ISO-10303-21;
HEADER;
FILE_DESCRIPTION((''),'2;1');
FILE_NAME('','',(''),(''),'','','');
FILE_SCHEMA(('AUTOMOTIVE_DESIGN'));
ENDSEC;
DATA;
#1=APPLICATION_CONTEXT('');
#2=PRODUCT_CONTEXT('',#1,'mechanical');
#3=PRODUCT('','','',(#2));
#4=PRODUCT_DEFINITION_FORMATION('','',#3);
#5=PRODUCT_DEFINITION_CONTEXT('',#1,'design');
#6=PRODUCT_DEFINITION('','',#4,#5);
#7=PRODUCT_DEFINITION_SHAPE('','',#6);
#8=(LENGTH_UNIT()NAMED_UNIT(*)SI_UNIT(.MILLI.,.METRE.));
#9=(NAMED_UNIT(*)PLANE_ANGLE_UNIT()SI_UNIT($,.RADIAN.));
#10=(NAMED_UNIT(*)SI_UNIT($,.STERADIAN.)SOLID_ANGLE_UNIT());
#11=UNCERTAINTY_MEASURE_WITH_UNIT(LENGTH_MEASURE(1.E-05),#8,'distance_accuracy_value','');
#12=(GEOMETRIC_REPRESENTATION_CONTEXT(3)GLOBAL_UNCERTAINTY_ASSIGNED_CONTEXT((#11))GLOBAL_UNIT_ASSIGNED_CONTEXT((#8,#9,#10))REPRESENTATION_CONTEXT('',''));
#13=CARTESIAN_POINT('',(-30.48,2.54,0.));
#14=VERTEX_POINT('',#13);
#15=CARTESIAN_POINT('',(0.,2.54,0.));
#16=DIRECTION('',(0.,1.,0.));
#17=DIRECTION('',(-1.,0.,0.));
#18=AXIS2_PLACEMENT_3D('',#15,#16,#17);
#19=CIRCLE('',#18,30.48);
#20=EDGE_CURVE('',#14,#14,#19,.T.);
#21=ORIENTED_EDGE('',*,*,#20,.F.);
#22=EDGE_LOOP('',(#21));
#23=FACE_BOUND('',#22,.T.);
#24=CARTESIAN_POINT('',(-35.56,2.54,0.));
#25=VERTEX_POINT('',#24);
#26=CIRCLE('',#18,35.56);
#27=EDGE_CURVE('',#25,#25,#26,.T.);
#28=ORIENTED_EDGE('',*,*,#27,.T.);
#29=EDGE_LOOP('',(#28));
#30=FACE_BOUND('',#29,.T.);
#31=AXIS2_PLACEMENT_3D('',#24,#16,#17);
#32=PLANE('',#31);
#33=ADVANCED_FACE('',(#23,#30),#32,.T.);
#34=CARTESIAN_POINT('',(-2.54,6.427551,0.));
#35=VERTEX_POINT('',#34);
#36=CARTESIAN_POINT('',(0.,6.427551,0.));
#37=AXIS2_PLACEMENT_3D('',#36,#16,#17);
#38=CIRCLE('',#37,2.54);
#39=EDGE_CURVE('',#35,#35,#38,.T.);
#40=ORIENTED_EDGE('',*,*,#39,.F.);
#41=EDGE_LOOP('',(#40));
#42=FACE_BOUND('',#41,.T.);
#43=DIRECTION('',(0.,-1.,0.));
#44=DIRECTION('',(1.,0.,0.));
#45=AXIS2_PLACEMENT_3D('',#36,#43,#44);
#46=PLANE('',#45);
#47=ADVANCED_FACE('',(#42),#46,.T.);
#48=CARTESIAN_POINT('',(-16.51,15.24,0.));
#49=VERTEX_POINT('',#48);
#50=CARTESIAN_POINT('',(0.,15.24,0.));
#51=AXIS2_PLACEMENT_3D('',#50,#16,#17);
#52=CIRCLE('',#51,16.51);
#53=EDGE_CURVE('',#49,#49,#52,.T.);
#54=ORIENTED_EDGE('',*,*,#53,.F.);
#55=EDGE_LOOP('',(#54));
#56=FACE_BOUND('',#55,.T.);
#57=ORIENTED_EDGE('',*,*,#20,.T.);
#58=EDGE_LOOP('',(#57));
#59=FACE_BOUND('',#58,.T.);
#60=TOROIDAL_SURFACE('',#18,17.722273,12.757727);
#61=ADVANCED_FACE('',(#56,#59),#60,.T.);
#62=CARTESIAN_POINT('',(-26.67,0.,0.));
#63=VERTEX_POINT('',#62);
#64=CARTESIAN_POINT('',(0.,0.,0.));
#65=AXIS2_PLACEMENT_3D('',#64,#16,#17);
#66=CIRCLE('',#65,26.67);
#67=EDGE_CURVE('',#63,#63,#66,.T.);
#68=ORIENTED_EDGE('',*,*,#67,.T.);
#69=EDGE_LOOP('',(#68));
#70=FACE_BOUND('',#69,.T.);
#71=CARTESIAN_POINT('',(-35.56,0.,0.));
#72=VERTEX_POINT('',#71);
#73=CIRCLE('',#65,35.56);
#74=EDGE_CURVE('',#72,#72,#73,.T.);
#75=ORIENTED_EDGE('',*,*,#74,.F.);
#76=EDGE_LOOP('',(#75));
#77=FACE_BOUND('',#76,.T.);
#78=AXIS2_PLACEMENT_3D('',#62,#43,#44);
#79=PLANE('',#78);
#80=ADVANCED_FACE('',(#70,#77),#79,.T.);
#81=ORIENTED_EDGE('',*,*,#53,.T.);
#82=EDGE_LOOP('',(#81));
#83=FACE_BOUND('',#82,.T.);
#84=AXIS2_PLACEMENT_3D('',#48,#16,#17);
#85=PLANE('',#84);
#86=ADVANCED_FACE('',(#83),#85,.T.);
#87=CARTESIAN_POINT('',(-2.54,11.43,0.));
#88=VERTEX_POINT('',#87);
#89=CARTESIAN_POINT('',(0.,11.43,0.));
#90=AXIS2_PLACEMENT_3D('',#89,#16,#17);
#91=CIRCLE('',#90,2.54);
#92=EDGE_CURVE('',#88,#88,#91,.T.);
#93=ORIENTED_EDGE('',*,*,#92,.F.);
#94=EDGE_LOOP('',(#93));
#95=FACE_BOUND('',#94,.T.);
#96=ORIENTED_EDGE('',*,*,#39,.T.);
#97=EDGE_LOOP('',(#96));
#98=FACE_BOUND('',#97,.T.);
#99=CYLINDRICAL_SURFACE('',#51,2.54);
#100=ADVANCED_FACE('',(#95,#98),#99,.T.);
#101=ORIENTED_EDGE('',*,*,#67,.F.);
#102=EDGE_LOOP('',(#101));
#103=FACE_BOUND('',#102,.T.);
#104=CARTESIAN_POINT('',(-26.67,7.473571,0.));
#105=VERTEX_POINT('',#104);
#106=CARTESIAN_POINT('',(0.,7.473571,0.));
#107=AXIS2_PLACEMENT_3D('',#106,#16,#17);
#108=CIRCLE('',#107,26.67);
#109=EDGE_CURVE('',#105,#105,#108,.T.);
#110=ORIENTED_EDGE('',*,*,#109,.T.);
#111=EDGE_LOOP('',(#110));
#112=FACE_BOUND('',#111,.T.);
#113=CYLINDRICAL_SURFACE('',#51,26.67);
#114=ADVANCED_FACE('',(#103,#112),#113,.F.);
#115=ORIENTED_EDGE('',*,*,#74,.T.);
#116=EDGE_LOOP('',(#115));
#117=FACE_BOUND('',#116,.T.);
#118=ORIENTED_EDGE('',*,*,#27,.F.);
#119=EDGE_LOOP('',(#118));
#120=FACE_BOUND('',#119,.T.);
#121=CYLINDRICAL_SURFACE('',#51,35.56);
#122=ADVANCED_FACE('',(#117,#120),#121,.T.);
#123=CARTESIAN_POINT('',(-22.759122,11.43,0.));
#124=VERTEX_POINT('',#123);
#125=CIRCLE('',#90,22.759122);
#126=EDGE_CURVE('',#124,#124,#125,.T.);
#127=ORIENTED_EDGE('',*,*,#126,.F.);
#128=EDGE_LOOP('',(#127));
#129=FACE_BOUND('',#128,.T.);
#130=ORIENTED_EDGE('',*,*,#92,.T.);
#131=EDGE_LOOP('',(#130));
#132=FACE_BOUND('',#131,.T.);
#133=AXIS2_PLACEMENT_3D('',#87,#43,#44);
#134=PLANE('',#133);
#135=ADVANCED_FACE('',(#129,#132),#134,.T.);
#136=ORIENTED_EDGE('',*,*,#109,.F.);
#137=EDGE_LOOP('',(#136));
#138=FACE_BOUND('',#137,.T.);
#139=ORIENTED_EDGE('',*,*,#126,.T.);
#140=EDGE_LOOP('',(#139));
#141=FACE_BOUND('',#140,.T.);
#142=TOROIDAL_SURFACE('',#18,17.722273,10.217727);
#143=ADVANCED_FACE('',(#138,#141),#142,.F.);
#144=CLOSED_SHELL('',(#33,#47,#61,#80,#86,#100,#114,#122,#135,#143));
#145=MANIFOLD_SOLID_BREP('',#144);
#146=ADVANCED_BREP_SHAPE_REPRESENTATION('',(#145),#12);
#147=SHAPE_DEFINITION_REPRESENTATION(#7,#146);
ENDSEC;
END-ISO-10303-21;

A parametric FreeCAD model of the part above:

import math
import FreeCAD as App
import Part
import Sketcher

V = App.Vector
Q = App.Units.Quantity

doc = App.newDocument("Part")
body = doc.addObject("PartDesign::Body", "Body")

# Sketch on XY plane
sketch1 = doc.addObject("Sketcher::SketchObject", "Sketch")
body.addObject(sketch1)
sketch1.AttachmentSupport = (doc.XY_Plane, [""])
sketch1.MapMode = "FlatFace"
sketch1.addGeometry([
    Part.LineSegment(V(-35.6, 2.5, 0), V(-35.6, 0, 0)),  # 0
    Part.LineSegment(V(-35.6, 0, 0), V(-26.7, 0, 0)),  # 1
    Part.LineSegment(V(-26.7, 0, 0), V(-26.7, 7.5, 0)),  # 2
    Part.ArcOfCircle(Part.Circle(V(-17.7, 2.5, 0), V(0, 0, 1), 10.2), math.radians(120), math.radians(151)),  # 3
    Part.LineSegment(V(-22.8, 11.4, 0), V(-2.5, 11.4, 0)),  # 4
    Part.LineSegment(V(-2.5, 11.4, 0), V(-2.5, 6.4, 0)),  # 5
    Part.LineSegment(V(-2.5, 6.4, 0), V(0, 6.4, 0)),  # 6
    Part.LineSegment(V(0, 6.4, 0), V(0, 15.2, 0)),  # 7
    Part.LineSegment(V(0, 15.2, 0), V(-16.5, 15.2, 0)),  # 8
    Part.ArcOfCircle(Part.Circle(V(-17.7, 2.5, 0), V(0, 0, 1), 12.8), math.radians(85), math.radians(180)),  # 9
    Part.LineSegment(V(-30.5, 2.5, 0), V(-35.6, 2.5, 0)),  # 10
], False)
sketch1.addConstraint([
    Sketcher.Constraint("Coincident", 0, 2, 1, 1),
    Sketcher.Constraint("Coincident", 1, 2, 2, 1),
    Sketcher.Constraint("Coincident", 2, 2, 3, 2),
    Sketcher.Constraint("Coincident", 3, 1, 4, 1),
    Sketcher.Constraint("Coincident", 4, 2, 5, 1),
    Sketcher.Constraint("Coincident", 5, 2, 6, 1),
    Sketcher.Constraint("Coincident", 6, 2, 7, 1),
    Sketcher.Constraint("Coincident", 7, 2, 8, 1),
    Sketcher.Constraint("Coincident", 8, 2, 9, 1),
    Sketcher.Constraint("Coincident", 9, 2, 10, 1),
    Sketcher.Constraint("Coincident", 10, 2, 0, 1),
    Sketcher.Constraint("Vertical", 0),
    Sketcher.Constraint("Horizontal", 1),
    Sketcher.Constraint("Vertical", 2),
    Sketcher.Constraint("Horizontal", 4),
    Sketcher.Constraint("Vertical", 5),
    Sketcher.Constraint("Horizontal", 6),
    Sketcher.Constraint("Vertical", 7),
    Sketcher.Constraint("Horizontal", 8),
    Sketcher.Constraint("Horizontal", 10),
    Sketcher.Constraint("Coincident", 9, 3, 3, 3),
    Sketcher.Constraint("PointOnObject", 0, 2, -1),
    Sketcher.Constraint("PointOnObject", 6, 2, -2),
    Sketcher.Constraint("Horizontal", 3, 3, 9, 2),
    Sketcher.Constraint("Equal", 6, 0),
    Sketcher.Constraint("DistanceX", 6, 1, 6, 2, Q("0.1 in")),
    Sketcher.Constraint("DistanceX", 10, 2, 10, 1, Q("0.2 in")),
    Sketcher.Constraint("DistanceX", 1, 1, 1, 2, Q("0.35 in")),
    Sketcher.Constraint("DistanceX", 8, 2, 8, 1, Q("0.65 in")),
    Sketcher.Constraint("DistanceX", 0, 2, -1, 1, Q("1.4 in")),
    Sketcher.Constraint("DistanceY", -1, 1, 7, 2, Q("0.6 in")),
    Sketcher.Constraint("DistanceY", -1, 1, 3, 1, Q("0.45 in")),
    Sketcher.Constraint("Radius", 3, 10.217727),
    Sketcher.Constraint("DistanceY", 5, 2, 5, 1, 5.002449),
])
revolution = doc.addObject("PartDesign::Revolution", "Revolution")
body.addObject(revolution)
revolution.Profile = sketch1
revolution.ReferenceAxis = (sketch1, ["V_Axis"])
revolution.Angle = 360

doc.recompute()
